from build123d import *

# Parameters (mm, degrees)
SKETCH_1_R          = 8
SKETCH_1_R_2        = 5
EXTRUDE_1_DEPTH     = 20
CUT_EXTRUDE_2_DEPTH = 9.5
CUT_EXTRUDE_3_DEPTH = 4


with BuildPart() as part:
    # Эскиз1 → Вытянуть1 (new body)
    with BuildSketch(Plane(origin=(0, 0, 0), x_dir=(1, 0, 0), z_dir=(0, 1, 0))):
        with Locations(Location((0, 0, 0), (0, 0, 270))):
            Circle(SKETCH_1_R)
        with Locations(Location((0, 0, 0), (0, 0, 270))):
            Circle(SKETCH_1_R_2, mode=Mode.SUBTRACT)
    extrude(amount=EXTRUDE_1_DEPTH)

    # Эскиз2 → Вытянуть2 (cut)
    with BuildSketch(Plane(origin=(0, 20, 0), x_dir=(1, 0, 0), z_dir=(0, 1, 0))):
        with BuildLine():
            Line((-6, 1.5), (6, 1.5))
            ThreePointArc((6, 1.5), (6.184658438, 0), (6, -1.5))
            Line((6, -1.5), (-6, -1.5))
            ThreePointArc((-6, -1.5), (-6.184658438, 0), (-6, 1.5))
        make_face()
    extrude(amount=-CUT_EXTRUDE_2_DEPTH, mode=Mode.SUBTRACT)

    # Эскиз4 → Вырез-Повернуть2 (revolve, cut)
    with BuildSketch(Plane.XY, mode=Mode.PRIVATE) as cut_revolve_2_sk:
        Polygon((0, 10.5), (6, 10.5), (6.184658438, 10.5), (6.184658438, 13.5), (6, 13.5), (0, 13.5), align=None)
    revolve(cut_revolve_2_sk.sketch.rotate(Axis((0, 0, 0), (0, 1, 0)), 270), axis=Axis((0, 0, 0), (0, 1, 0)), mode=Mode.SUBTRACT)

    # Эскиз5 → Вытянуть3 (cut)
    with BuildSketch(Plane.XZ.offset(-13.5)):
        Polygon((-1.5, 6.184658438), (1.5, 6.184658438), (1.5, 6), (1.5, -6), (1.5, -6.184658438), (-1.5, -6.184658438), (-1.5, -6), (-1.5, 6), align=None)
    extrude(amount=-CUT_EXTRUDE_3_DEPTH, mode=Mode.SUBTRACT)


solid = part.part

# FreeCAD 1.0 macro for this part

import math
import FreeCAD as App
import Part
import Sketcher
from FreeCAD import Vector


def add_polygon(sketch, points):
    """Adds a closed chain of lines whose ends are joined by coincident constraints."""
    first, n = sketch.GeometryCount, len(points)
    for a, b in zip(points, points[1:] + points[:1]):
        sketch.addGeometry(Part.LineSegment(App.Vector(*a, 0), App.Vector(*b, 0)), False)
    for i in range(n):
        sketch.addConstraint(Sketcher.Constraint("Coincident", first + i, 2, first + (i + 1) % n, 1))

doc = App.newDocument("Part")
params = doc.addObject("Spreadsheet::Sheet", "Params")
for row, (alias, value) in enumerate([
    ("sketch1_diameter", "16 mm"),
    ("sketch1_diameter2", "10 mm"),
    ("pad1_length", "20 mm"),
    ("sketch2_width", "12 mm"),
    ("pocket1_length", "9.5 mm"),
    ("sketch3_height", "3 mm"),
    ("groove_angle", "360 deg"),
    ("sketch4_width", "3 mm"),
    ("pocket2_length", "4 mm"),
], start=1):
    params.set(f"A{row}", alias)
    params.set(f"B{row}", "=" + value)
    params.setAlias(f"B{row}", alias)

body = doc.addObject("PartDesign::Body", "Body")

sketch1 = doc.addObject("Sketcher::SketchObject", "Sketch")
body.addObject(sketch1)
sketch1.AttachmentSupport = (doc.XZ_Plane, [""])
sketch1.MapMode = "FlatFace"
sketch1.addGeometry([
    Part.Circle(Vector(0, 0, 0), Vector(0, 0, 1), 8),
    Part.Circle(Vector(0, 0, 0), Vector(0, 0, 1), 5),
], False)
sketch1.addConstraint([
    Sketcher.Constraint("Coincident", 0, 3, -1, 1),
    Sketcher.Constraint("Coincident", 1, 3, -1, 1),
    Sketcher.Constraint("Diameter", 0, 16.0),
    Sketcher.Constraint("Diameter", 1, 10.0),
])
sketch1.setExpression("Constraints[2]", "Params.sketch1_diameter")
sketch1.setExpression("Constraints[3]", "Params.sketch1_diameter2")
pad1 = doc.addObject("PartDesign::Pad", "Pad")
body.addObject(pad1)
pad1.Profile = sketch1
pad1.setExpression("Length", "Params.pad1_length")
pad1.Reversed = True

sketch2 = doc.addObject("Sketcher::SketchObject", "Sketch001")
body.addObject(sketch2)
sketch2.AttachmentSupport = (doc.XZ_Plane, [""])
sketch2.MapMode = "FlatFace"
sketch2.AttachmentOffset = App.Placement(Vector(0, 0, -20), App.Rotation())
sketch2.addGeometry([
    Part.LineSegment(Vector(6, -1.5, 0), Vector(-6, -1.5, 0)),
    Part.ArcOfCircle(Part.Circle(Vector(0, 0, 0), Vector(0, 0, 1), 6.184658), math.radians(165.963757), math.radians(194.036243)),
    Part.LineSegment(Vector(-6, 1.5, 0), Vector(6, 1.5, 0)),
    Part.ArcOfCircle(Part.Circle(Vector(0, 0, 0), Vector(0, 0, 1), 6.184658), math.radians(-14.036243), math.radians(14.036243)),
], False)
sketch2.addConstraint([
    Sketcher.Constraint("Coincident", 0, 2, 1, 2),
    Sketcher.Constraint("Coincident", 1, 1, 2, 1),
    Sketcher.Constraint("Coincident", 2, 2, 3, 2),
    Sketcher.Constraint("Coincident", 3, 1, 0, 1),
    Sketcher.Constraint("Horizontal", 0),
    Sketcher.Constraint("Horizontal", 2),
    Sketcher.Constraint("Coincident", 1, 3, -1, 1),
    Sketcher.Constraint("Coincident", 3, 3, -1, 1),
    Sketcher.Constraint("Equal", 1, 3),
    Sketcher.Constraint("Vertical", 0, 2, 1, 1),
    Sketcher.Constraint("DistanceX", 0, 2, 0, 1, 12.0),
    Sketcher.Constraint("DistanceY", 0, 2, 1, 1, 3.0),
])
sketch2.setExpression("Constraints[10]", "Params.sketch2_width")
pocket1 = doc.addObject("PartDesign::Pocket", "Pocket")
body.addObject(pocket1)
pocket1.Profile = sketch2
pocket1.setExpression("Length", "Params.pocket1_length")
pocket1.Reversed = True

sketch3 = doc.addObject("Sketcher::SketchObject", "Sketch002")
body.addObject(sketch3)
sketch3.AttachmentSupport = (doc.XY_Plane, [""])
sketch3.MapMode = "FlatFace"
add_polygon(sketch3, [(0, 10.5), (6.184658, 10.5), (6.184658, 13.5), (0, 13.5)])
sketch3.addConstraint([
    Sketcher.Constraint("Horizontal", 0),
    Sketcher.Constraint("Vertical", 1),
    Sketcher.Constraint("Horizontal", 2),
    Sketcher.Constraint("Vertical", 3),
    Sketcher.Constraint("PointOnObject", 2, 2, -2),
    Sketcher.Constraint("DistanceY", 1, 1, 1, 2, 3.0),
    Sketcher.Constraint("DistanceY", -1, 1, 0, 2, 10.5),
    Sketcher.Constraint("DistanceX", 0, 1, 0, 2, 6.184658),
])
sketch3.setExpression("Constraints[9]", "Params.sketch3_height")
groove = doc.addObject("PartDesign::Groove", "Groove")
body.addObject(groove)
groove.Profile = sketch3
groove.ReferenceAxis = (sketch3, ["V_Axis"])
groove.setExpression("Angle", "Params.groove_angle")

sketch4 = doc.addObject("Sketcher::SketchObject", "Sketch003")
body.addObject(sketch4)
sketch4.AttachmentSupport = (doc.XZ_Plane, [""])
sketch4.MapMode = "FlatFace"
sketch4.AttachmentOffset = App.Placement(Vector(0, 0, -13.5), App.Rotation())
add_polygon(sketch4, [(1.5, 6.184658), (-1.5, 6.184658), (-1.5, -6.184658), (1.5, -6.184658)])
sketch4.addConstraint([
    Sketcher.Constraint("Horizontal", 0),
    Sketcher.Constraint("Vertical", 1),
    Sketcher.Constraint("Horizontal", 2),
    Sketcher.Constraint("Vertical", 3),
    Sketcher.Constraint("Symmetric", 0, 2, 2, 2, -1, 1),
    Sketcher.Constraint("DistanceX", 0, 2, 0, 1, 3.0),
    Sketcher.Constraint("DistanceY", 1, 2, 1, 1, 12.369317),
])
sketch4.setExpression("Constraints[9]", "Params.sketch4_width")
pocket2 = doc.addObject("PartDesign::Pocket", "Pocket001")
body.addObject(pocket2)
pocket2.Profile = sketch4
pocket2.setExpression("Length", "Params.pocket2_length")

doc.recompute()
